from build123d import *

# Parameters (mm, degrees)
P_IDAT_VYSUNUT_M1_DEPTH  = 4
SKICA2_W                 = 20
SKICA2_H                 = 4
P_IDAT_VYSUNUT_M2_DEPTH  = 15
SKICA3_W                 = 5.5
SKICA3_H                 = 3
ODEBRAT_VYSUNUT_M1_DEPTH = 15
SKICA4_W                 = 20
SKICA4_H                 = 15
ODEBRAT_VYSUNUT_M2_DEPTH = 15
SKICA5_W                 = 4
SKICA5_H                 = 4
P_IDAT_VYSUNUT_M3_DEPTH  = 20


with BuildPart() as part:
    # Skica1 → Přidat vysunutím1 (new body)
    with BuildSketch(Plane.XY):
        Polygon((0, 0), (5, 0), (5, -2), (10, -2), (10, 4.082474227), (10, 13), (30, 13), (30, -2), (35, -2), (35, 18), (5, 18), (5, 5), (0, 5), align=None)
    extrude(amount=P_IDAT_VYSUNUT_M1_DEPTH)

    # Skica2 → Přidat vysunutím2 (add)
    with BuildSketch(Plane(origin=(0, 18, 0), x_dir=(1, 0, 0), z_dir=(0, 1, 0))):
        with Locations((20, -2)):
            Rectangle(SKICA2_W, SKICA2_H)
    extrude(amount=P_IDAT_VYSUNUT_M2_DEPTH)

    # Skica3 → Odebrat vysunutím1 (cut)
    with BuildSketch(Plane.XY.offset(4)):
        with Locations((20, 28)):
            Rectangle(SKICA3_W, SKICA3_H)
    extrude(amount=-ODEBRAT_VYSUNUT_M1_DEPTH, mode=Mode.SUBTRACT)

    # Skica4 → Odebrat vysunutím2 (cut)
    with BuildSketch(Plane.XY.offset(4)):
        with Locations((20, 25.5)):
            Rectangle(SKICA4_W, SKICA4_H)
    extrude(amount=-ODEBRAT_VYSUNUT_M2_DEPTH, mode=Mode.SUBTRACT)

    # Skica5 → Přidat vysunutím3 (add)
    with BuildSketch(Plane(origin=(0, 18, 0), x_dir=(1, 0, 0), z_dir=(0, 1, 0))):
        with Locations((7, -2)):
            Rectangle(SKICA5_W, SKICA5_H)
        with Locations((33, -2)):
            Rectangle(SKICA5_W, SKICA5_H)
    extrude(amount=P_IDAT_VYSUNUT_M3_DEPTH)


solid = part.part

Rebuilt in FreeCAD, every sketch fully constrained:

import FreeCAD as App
import Part
import Sketcher

V = App.Vector
Q = App.Units.Quantity


def add_polygon(sketch, points):
    """Adds a closed chain of lines whose ends are joined by coincident constraints."""
    first, n = sketch.GeometryCount, len(points)
    for a, b in zip(points, points[1:] + points[:1]):
        sketch.addGeometry(Part.LineSegment(App.Vector(*a, 0), App.Vector(*b, 0)), False)
    for i in range(n):
        sketch.addConstraint(Sketcher.Constraint("Coincident", first + i, 2, first + (i + 1) % n, 1))

doc = App.newDocument("Part")
body = doc.addObject("PartDesign::Body", "Body")

sketch1 = doc.addObject("Sketcher::SketchObject", "Sketch")
body.addObject(sketch1)
sketch1.AttachmentSupport = (doc.XY_Plane, [""])
sketch1.MapMode = "FlatFace"
add_polygon(sketch1, [(0, 0), (5, 0), (5, -2), (10, -2), (10, 13), (30, 13), (30, -2), (35, -2), (35, 18), (5, 18), (5, 5), (0, 5)])
sketch1.addConstraint(Sketcher.Constraint("Horizontal", 0))
sketch1.addConstraint(Sketcher.Constraint("Vertical", 1))
sketch1.addConstraint(Sketcher.Constraint("Horizontal", 2))
sketch1.addConstraint(Sketcher.Constraint("Vertical", 3))
sketch1.addConstraint(Sketcher.Constraint("Horizontal", 4))
sketch1.addConstraint(Sketcher.Constraint("Vertical", 5))
sketch1.addConstraint(Sketcher.Constraint("Horizontal", 6))
sketch1.addConstraint(Sketcher.Constraint("Vertical", 7))
sketch1.addConstraint(Sketcher.Constraint("Horizontal", 8))
sketch1.addConstraint(Sketcher.Constraint("Vertical", 9))
sketch1.addConstraint(Sketcher.Constraint("Horizontal", 10))
sketch1.addConstraint(Sketcher.Constraint("Vertical", 11))
sketch1.addConstraint(Sketcher.Constraint("Coincident", 11, 2, -1, 1))
sketch1.addConstraint(Sketcher.Constraint("Horizontal", 2, 2, 5, 2))
sketch1.addConstraint(Sketcher.Constraint("Vertical", 1, 2, 8, 2))
sketch1.addConstraint(Sketcher.Constraint("Equal", 0, 2))
sketch1.addConstraint(Sketcher.Constraint("Equal", 2, 6))
sketch1.addConstraint(Sketcher.Constraint("Equal", 4, 7))
sketch1.addConstraint(Sketcher.Constraint("Equal", 10, 11))
sketch1.addConstraint(Sketcher.Constraint("DistanceX", 0, 1, 0, 2, Q("5 mm")))
sketch1.addConstraint(Sketcher.Constraint("DistanceX", 4, 1, 4, 2, Q("20 mm")))
sketch1.addConstraint(Sketcher.Constraint("DistanceY", 1, 2, 1, 1, Q("2 mm")))
sketch1.addConstraint(Sketcher.Constraint("DistanceY", 3, 1, 3, 2, Q("15 mm")))
pad1 = doc.addObject("PartDesign::Pad", "Pad")
body.addObject(pad1)
pad1.Profile = sketch1
pad1.Length = 4

sketch2 = doc.addObject("Sketcher::SketchObject", "Sketch001")
body.addObject(sketch2)
sketch2.AttachmentSupport = (doc.XZ_Plane, [""])
sketch2.MapMode = "FlatFace"
sketch2.AttachmentOffset = App.Placement(V(0, 0, -18), App.Rotation())
add_polygon(sketch2, [(10, 0), (10, 4), (30, 4), (30, 0)])
sketch2.addConstraint(Sketcher.Constraint("Vertical", 0))
sketch2.addConstraint(Sketcher.Constraint("Horizontal", 1))
sketch2.addConstraint(Sketcher.Constraint("Vertical", 2))
sketch2.addConstraint(Sketcher.Constraint("Horizontal", 3))
sketch2.addConstraint(Sketcher.Constraint("PointOnObject", 2, 2, -1))
sketch2.addConstraint(Sketcher.Constraint("DistanceX", 1, 1, 1, 2, Q("20 mm")))
sketch2.addConstraint(Sketcher.Constraint("DistanceY", 0, 1, 0, 2, Q("4 mm")))
sketch2.addConstraint(Sketcher.Constraint("DistanceX", -1, 1, 0, 2, Q("10 mm")))
pad2 = doc.addObject("PartDesign::Pad", "Pad001")
body.addObject(pad2)
pad2.Profile = sketch2
pad2.Length = 15
pad2.Reversed = True

sketch3 = doc.addObject("Sketcher::SketchObject", "Sketch002")
body.addObject(sketch3)
sketch3.AttachmentSupport = (doc.XY_Plane, [""])
sketch3.MapMode = "FlatFace"
sketch3.AttachmentOffset = App.Placement(V(0, 0, 4), App.Rotation())
add_polygon(sketch3, [(17.2, 29.5), (17.2, 26.5), (22.8, 26.5), (22.8, 29.5)])
sketch3.addConstraint(Sketcher.Constraint("Vertical", 0))
sketch3.addConstraint(Sketcher.Constraint("Horizontal", 1))
sketch3.addConstraint(Sketcher.Constraint("Vertical", 2))
sketch3.addConstraint(Sketcher.Constraint("Horizontal", 3))
sketch3.addConstraint(Sketcher.Constraint("DistanceY", 0, 2, 0, 1, Q("3 mm")))
sketch3.addConstraint(Sketcher.Constraint("DistanceX", 1, 1, 1, 2, Q("5.5 mm")))
sketch3.addConstraint(Sketcher.Constraint("DistanceY", -1, 1, 0, 2, Q("26.5 mm")))
sketch3.addConstraint(Sketcher.Constraint("DistanceX", -1, 1, 0, 2, Q("17.25 mm")))
pocket1 = doc.addObject("PartDesign::Pocket", "Pocket")
body.addObject(pocket1)
pocket1.Profile = sketch3
pocket1.Length = 15

sketch4 = doc.addObject("Sketcher::SketchObject", "Sketch003")
body.addObject(sketch4)
sketch4.AttachmentSupport = (doc.XY_Plane, [""])
sketch4.MapMode = "FlatFace"
sketch4.AttachmentOffset = App.Placement(V(0, 0, 4), App.Rotation())
add_polygon(sketch4, [(10, 33), (10, 18), (30, 18), (30, 33)])
sketch4.addConstraint(Sketcher.Constraint("Vertical", 0))
sketch4.addConstraint(Sketcher.Constraint("Horizontal", 1))
sketch4.addConstraint(Sketcher.Constraint("Vertical", 2))
sketch4.addConstraint(Sketcher.Constraint("Horizontal", 3))
sketch4.addConstraint(Sketcher.Constraint("DistanceX", 1, 1, 1, 2, Q("20 mm")))
sketch4.addConstraint(Sketcher.Constraint("DistanceY", 0, 2, 0, 1, Q("15 mm")))
sketch4.addConstraint(Sketcher.Constraint("DistanceX", -1, 1, 0, 2, Q("10 mm")))
sketch4.addConstraint(Sketcher.Constraint("DistanceY", -1, 1, 0, 2, Q("18 mm")))
pocket2 = doc.addObject("PartDesign::Pocket", "Pocket001")
body.addObject(pocket2)
pocket2.Profile = sketch4
pocket2.Length = 15

sketch5 = doc.addObject("Sketcher::SketchObject", "Sketch004")
body.addObject(sketch5)
sketch5.AttachmentSupport = (doc.XZ_Plane, [""])
sketch5.MapMode = "FlatFace"
sketch5.AttachmentOffset = App.Placement(V(0, 0, -18), App.Rotation())
add_polygon(sketch5, [(5, 0), (5, 4), (9, 4), (9, 0)])
add_polygon(sketch5, [(31, 0), (31, 4), (35, 4), (35, 0)])
sketch5.addConstraint(Sketcher.Constraint("Vertical", 0))
sketch5.addConstraint(Sketcher.Constraint("Horizontal", 1))
sketch5.addConstraint(Sketcher.Constraint("Vertical", 2))
sketch5.addConstraint(Sketcher.Constraint("Horizontal", 3))
sketch5.addConstraint(Sketcher.Constraint("Vertical", 4))
sketch5.addConstraint(Sketcher.Constraint("Horizontal", 5))
sketch5.addConstraint(Sketcher.Constraint("Vertical", 6))
sketch5.addConstraint(Sketcher.Constraint("Horizontal", 7))
sketch5.addConstraint(Sketcher.Constraint("PointOnObject", 2, 2, -1))
sketch5.addConstraint(Sketcher.Constraint("PointOnObject", 6, 2, -1))
sketch5.addConstraint(Sketcher.Constraint("Horizontal", 1, 2, 4, 2))
sketch5.addConstraint(Sketcher.Constraint("Equal", 3, 5))
sketch5.addConstraint(Sketcher.Constraint("Equal", 7, 0))
sketch5.addConstraint(Sketcher.Constraint("DistanceX", 1, 1, 1, 2, Q("4 mm")))
sketch5.addConstraint(Sketcher.Constraint("DistanceX", -1, 1, 0, 2, Q("5 mm")))
sketch5.addConstraint(Sketcher.Constraint("DistanceX", -1, 1, 4, 2, Q("31 mm")))
pad3 = doc.addObject("PartDesign::Pad", "Pad002")
body.addObject(pad3)
pad3.Profile = sketch5
pad3.Length = 20
pad3.Reversed = True

doc.recompute()
